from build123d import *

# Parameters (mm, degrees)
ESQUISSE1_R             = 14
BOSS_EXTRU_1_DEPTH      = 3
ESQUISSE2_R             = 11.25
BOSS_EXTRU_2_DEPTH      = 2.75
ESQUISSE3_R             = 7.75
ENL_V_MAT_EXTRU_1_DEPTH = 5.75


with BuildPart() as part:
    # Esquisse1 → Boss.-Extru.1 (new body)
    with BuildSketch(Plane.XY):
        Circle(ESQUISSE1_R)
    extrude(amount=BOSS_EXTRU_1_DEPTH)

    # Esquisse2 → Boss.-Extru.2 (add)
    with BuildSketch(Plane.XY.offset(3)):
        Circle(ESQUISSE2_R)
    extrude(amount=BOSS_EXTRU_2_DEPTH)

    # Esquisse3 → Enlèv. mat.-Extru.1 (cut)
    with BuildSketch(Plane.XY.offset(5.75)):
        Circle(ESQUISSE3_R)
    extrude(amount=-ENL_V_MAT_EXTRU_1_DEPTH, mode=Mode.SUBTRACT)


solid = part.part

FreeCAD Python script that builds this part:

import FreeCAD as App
import Part
import Sketcher

V = App.Vector

doc = App.newDocument("Part")
body = doc.addObject("PartDesign::Body", "Body")

# Sketch on XY plane
sketch1 = body.newObject("Sketcher::SketchObject", "Sketch")
sketch1.AttachmentSupport = (doc.getObject("XY_Plane"), [""])
sketch1.MapMode = "FlatFace"
sketch1.addGeometry(Part.Circle(V(0, 0, 0), V(0, 0, 1), 14), False)
sketch1.addConstraint(Sketcher.Constraint("Coincident", 0, 3, -1, 1))
sketch1.addConstraint(Sketcher.Constraint("Diameter", 0, 28.0))
pad1 = body.newObject("PartDesign::Pad", "Pad")
pad1.Profile = sketch1
pad1.Length = 3

# Sketch on XY plane
sketch2 = body.newObject("Sketcher::SketchObject", "Sketch001")
sketch2.AttachmentSupport = (doc.getObject("XY_Plane"), [""])
sketch2.MapMode = "FlatFace"
sketch2.AttachmentOffset = App.Placement(V(0, 0, 3), App.Rotation())
sketch2.addGeometry(Part.Circle(V(0, 0, 0), V(0, 0, 1), 11), False)
sketch2.addConstraint(Sketcher.Constraint("Coincident", 0, 3, -1, 1))
sketch2.addConstraint(Sketcher.Constraint("Diameter", 0, 22.5))
pad2 = body.newObject("PartDesign::Pad", "Pad001")
pad2.Profile = sketch2
pad2.Length = 2.75

# Sketch on XY plane
sketch3 = body.newObject("Sketcher::SketchObject", "Sketch002")
sketch3.AttachmentSupport = (doc.getObject("XY_Plane"), [""])
sketch3.MapMode = "FlatFace"
sketch3.AttachmentOffset = App.Placement(V(0, 0, 5.75), App.Rotation())
sketch3.addGeometry(Part.Circle(V(0, 0, 0), V(0, 0, 1), 8), False)
sketch3.addConstraint(Sketcher.Constraint("Coincident", 0, 3, -1, 1))
sketch3.addConstraint(Sketcher.Constraint("Diameter", 0, 15.5))
pocket1 = body.newObject("PartDesign::Pocket", "Pocket")
pocket1.Profile = sketch3
pocket1.Length = 5.75

doc.recompute()
